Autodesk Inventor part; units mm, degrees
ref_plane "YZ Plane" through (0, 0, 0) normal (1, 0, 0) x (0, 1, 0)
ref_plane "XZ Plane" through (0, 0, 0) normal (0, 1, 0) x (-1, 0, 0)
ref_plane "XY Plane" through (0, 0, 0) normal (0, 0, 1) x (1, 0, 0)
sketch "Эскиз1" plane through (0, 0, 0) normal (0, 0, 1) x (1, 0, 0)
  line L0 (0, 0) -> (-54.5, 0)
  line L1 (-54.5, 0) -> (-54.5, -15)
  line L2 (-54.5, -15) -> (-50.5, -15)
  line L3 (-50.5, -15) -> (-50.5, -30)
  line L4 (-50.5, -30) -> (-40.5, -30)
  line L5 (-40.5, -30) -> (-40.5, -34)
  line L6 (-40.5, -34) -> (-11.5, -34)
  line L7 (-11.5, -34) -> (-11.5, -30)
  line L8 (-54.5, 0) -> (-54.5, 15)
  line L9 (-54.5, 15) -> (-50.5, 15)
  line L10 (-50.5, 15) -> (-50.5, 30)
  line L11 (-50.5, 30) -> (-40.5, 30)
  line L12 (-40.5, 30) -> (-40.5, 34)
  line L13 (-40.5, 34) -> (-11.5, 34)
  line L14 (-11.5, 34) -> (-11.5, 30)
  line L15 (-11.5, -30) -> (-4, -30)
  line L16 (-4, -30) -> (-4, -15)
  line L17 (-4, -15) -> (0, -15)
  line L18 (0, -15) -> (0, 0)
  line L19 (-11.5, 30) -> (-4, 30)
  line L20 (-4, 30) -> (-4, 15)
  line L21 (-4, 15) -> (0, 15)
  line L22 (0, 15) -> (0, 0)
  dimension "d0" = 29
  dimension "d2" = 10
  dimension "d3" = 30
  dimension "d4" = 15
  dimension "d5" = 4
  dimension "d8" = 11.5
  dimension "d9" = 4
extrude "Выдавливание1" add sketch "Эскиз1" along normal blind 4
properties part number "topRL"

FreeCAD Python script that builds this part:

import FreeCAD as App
import Part
import Sketcher
from FreeCAD import Vector

doc = App.newDocument("Part")
body = doc.addObject("PartDesign::Body", "Body")

# Sketch on XY plane
sketch1 = body.newObject("Sketcher::SketchObject", "Sketch")
sketch1.AttachmentSupport = (doc.getObject("XY_Plane"), [""])
sketch1.MapMode = "FlatFace"
sketch1.addGeometry(Part.LineSegment(Vector(0, -15, 0), Vector(0, 15, 0)), False)
sketch1.addGeometry(Part.LineSegment(Vector(0, 15, 0), Vector(-4, 15, 0)), False)
sketch1.addGeometry(Part.LineSegment(Vector(-4, 15, 0), Vector(-4, 30, 0)), False)
sketch1.addGeometry(Part.LineSegment(Vector(-4, 30, 0), Vector(-11.5, 30, 0)), False)
sketch1.addGeometry(Part.LineSegment(Vector(-11.5, 30, 0), Vector(-11.5, 34, 0)), False)
sketch1.addGeometry(Part.LineSegment(Vector(-11.5, 34, 0), Vector(-40.5, 34, 0)), False)
sketch1.addGeometry(Part.LineSegment(Vector(-40.5, 34, 0), Vector(-40.5, 30, 0)), False)
sketch1.addGeometry(Part.LineSegment(Vector(-40.5, 30, 0), Vector(-50.5, 30, 0)), False)
sketch1.addGeometry(Part.LineSegment(Vector(-50.5, 30, 0), Vector(-50.5, 15, 0)), False)
sketch1.addGeometry(Part.LineSegment(Vector(-50.5, 15, 0), Vector(-54.5, 15, 0)), False)
sketch1.addGeometry(Part.LineSegment(Vector(-54.5, 15, 0), Vector(-54.5, -15, 0)), False)
sketch1.addGeometry(Part.LineSegment(Vector(-54.5, -15, 0), Vector(-50.5, -15, 0)), False)
sketch1.addGeometry(Part.LineSegment(Vector(-50.5, -15, 0), Vector(-50.5, -30, 0)), False)
sketch1.addGeometry(Part.LineSegment(Vector(-50.5, -30, 0), Vector(-40.5, -30, 0)), False)
sketch1.addGeometry(Part.LineSegment(Vector(-40.5, -30, 0), Vector(-40.5, -34, 0)), False)
sketch1.addGeometry(Part.LineSegment(Vector(-40.5, -34, 0), Vector(-11.5, -34, 0)), False)
sketch1.addGeometry(Part.LineSegment(Vector(-11.5, -34, 0), Vector(-11.5, -30, 0)), False)
sketch1.addGeometry(Part.LineSegment(Vector(-11.5, -30, 0), Vector(-4, -30, 0)), False)
sketch1.addGeometry(Part.LineSegment(Vector(-4, -30, 0), Vector(-4, -15, 0)), False)
sketch1.addGeometry(Part.LineSegment(Vector(-4, -15, 0), Vector(0, -15, 0)), False)
sketch1.addConstraint(Sketcher.Constraint("Coincident", 0, 2, 1, 1))
sketch1.addConstraint(Sketcher.Constraint("Coincident", 1, 2, 2, 1))
sketch1.addConstraint(Sketcher.Constraint("Coincident", 2, 2, 3, 1))
sketch1.addConstraint(Sketcher.Constraint("Coincident", 3, 2, 4, 1))
sketch1.addConstraint(Sketcher.Constraint("Coincident", 4, 2, 5, 1))
sketch1.addConstraint(Sketcher.Constraint("Coincident", 5, 2, 6, 1))
sketch1.addConstraint(Sketcher.Constraint("Coincident", 6, 2, 7, 1))
sketch1.addConstraint(Sketcher.Constraint("Coincident", 7, 2, 8, 1))
sketch1.addConstraint(Sketcher.Constraint("Coincident", 8, 2, 9, 1))
sketch1.addConstraint(Sketcher.Constraint("Coincident", 9, 2, 10, 1))
sketch1.addConstraint(Sketcher.Constraint("Coincident", 10, 2, 11, 1))
sketch1.addConstraint(Sketcher.Constraint("Coincident", 11, 2, 12, 1))
sketch1.addConstraint(Sketcher.Constraint("Coincident", 12, 2, 13, 1))
sketch1.addConstraint(Sketcher.Constraint("Coincident", 13, 2, 14, 1))
sketch1.addConstraint(Sketcher.Constraint("Coincident", 14, 2, 15, 1))
sketch1.addConstraint(Sketcher.Constraint("Coincident", 15, 2, 16, 1))
sketch1.addConstraint(Sketcher.Constraint("Coincident", 16, 2, 17, 1))
sketch1.addConstraint(Sketcher.Constraint("Coincident", 17, 2, 18, 1))
sketch1.addConstraint(Sketcher.Constraint("Coincident", 18, 2, 19, 1))
sketch1.addConstraint(Sketcher.Constraint("Coincident", 19, 2, 0, 1))
sketch1.addConstraint(Sketcher.Constraint("Vertical", 0))
sketch1.addConstraint(Sketcher.Constraint("Horizontal", 1))
sketch1.addConstraint(Sketcher.Constraint("Vertical", 2))
sketch1.addConstraint(Sketcher.Constraint("Horizontal", 3))
sketch1.addConstraint(Sketcher.Constraint("Vertical", 4))
sketch1.addConstraint(Sketcher.Constraint("Horizontal", 5))
sketch1.addConstraint(Sketcher.Constraint("Vertical", 6))
sketch1.addConstraint(Sketcher.Constraint("Horizontal", 7))
sketch1.addConstraint(Sketcher.Constraint("Vertical", 8))
sketch1.addConstraint(Sketcher.Constraint("Horizontal", 9))
sketch1.addConstraint(Sketcher.Constraint("Vertical", 10))
sketch1.addConstraint(Sketcher.Constraint("Horizontal", 11))
sketch1.addConstraint(Sketcher.Constraint("Vertical", 12))
sketch1.addConstraint(Sketcher.Constraint("Horizontal", 13))
sketch1.addConstraint(Sketcher.Constraint("Vertical", 14))
sketch1.addConstraint(Sketcher.Constraint("Horizontal", 15))
sketch1.addConstraint(Sketcher.Constraint("Vertical", 16))
sketch1.addConstraint(Sketcher.Constraint("Horizontal", 17))
sketch1.addConstraint(Sketcher.Constraint("Vertical", 18))
sketch1.addConstraint(Sketcher.Constraint("Horizontal", 19))
sketch1.addConstraint(Sketcher.Constraint("Symmetric", 0, 2, 19, 2, -1, 1))
sketch1.addConstraint(Sketcher.Constraint("Symmetric", 8, 2, 11, 2, -1))
sketch1.addConstraint(Sketcher.Constraint("Symmetric", 6, 2, 13, 2, -1))
sketch1.addConstraint(Sketcher.Constraint("Symmetric", 4, 2, 15, 2, -1))
sketch1.addConstraint(Sketcher.Constraint("Symmetric", 2, 2, 17, 2, -1))
sketch1.addConstraint(Sketcher.Constraint("Horizontal", 3, 2, 6, 2))
sketch1.addConstraint(Sketcher.Constraint("Horizontal", 1, 2, 8, 2))
sketch1.addConstraint(Sketcher.Constraint("Equal", 1, 9))
sketch1.addConstraint(Sketcher.Constraint("Equal", 19, 4))
sketch1.addConstraint(Sketcher.Constraint("DistanceX", 1, 2, 1, 1, 4.0))
sketch1.addConstraint(Sketcher.Constraint("DistanceX", 5, 2, 5, 1, 29.0))
sketch1.addConstraint(Sketcher.Constraint("DistanceX", 7, 2, 7, 1, 10.0))
sketch1.addConstraint(Sketcher.Constraint("DistanceY", 0, 1, 0, 2, 30.0))
sketch1.addConstraint(Sketcher.Constraint("DistanceY", 2, 1, 2, 2, 15.0))
sketch1.addConstraint(Sketcher.Constraint("DistanceX", 3, 2, -1, 1, 11.5))
pad1 = body.newObject("PartDesign::Pad", "Pad")
pad1.Profile = sketch1
pad1.Length = 4

doc.recompute()
